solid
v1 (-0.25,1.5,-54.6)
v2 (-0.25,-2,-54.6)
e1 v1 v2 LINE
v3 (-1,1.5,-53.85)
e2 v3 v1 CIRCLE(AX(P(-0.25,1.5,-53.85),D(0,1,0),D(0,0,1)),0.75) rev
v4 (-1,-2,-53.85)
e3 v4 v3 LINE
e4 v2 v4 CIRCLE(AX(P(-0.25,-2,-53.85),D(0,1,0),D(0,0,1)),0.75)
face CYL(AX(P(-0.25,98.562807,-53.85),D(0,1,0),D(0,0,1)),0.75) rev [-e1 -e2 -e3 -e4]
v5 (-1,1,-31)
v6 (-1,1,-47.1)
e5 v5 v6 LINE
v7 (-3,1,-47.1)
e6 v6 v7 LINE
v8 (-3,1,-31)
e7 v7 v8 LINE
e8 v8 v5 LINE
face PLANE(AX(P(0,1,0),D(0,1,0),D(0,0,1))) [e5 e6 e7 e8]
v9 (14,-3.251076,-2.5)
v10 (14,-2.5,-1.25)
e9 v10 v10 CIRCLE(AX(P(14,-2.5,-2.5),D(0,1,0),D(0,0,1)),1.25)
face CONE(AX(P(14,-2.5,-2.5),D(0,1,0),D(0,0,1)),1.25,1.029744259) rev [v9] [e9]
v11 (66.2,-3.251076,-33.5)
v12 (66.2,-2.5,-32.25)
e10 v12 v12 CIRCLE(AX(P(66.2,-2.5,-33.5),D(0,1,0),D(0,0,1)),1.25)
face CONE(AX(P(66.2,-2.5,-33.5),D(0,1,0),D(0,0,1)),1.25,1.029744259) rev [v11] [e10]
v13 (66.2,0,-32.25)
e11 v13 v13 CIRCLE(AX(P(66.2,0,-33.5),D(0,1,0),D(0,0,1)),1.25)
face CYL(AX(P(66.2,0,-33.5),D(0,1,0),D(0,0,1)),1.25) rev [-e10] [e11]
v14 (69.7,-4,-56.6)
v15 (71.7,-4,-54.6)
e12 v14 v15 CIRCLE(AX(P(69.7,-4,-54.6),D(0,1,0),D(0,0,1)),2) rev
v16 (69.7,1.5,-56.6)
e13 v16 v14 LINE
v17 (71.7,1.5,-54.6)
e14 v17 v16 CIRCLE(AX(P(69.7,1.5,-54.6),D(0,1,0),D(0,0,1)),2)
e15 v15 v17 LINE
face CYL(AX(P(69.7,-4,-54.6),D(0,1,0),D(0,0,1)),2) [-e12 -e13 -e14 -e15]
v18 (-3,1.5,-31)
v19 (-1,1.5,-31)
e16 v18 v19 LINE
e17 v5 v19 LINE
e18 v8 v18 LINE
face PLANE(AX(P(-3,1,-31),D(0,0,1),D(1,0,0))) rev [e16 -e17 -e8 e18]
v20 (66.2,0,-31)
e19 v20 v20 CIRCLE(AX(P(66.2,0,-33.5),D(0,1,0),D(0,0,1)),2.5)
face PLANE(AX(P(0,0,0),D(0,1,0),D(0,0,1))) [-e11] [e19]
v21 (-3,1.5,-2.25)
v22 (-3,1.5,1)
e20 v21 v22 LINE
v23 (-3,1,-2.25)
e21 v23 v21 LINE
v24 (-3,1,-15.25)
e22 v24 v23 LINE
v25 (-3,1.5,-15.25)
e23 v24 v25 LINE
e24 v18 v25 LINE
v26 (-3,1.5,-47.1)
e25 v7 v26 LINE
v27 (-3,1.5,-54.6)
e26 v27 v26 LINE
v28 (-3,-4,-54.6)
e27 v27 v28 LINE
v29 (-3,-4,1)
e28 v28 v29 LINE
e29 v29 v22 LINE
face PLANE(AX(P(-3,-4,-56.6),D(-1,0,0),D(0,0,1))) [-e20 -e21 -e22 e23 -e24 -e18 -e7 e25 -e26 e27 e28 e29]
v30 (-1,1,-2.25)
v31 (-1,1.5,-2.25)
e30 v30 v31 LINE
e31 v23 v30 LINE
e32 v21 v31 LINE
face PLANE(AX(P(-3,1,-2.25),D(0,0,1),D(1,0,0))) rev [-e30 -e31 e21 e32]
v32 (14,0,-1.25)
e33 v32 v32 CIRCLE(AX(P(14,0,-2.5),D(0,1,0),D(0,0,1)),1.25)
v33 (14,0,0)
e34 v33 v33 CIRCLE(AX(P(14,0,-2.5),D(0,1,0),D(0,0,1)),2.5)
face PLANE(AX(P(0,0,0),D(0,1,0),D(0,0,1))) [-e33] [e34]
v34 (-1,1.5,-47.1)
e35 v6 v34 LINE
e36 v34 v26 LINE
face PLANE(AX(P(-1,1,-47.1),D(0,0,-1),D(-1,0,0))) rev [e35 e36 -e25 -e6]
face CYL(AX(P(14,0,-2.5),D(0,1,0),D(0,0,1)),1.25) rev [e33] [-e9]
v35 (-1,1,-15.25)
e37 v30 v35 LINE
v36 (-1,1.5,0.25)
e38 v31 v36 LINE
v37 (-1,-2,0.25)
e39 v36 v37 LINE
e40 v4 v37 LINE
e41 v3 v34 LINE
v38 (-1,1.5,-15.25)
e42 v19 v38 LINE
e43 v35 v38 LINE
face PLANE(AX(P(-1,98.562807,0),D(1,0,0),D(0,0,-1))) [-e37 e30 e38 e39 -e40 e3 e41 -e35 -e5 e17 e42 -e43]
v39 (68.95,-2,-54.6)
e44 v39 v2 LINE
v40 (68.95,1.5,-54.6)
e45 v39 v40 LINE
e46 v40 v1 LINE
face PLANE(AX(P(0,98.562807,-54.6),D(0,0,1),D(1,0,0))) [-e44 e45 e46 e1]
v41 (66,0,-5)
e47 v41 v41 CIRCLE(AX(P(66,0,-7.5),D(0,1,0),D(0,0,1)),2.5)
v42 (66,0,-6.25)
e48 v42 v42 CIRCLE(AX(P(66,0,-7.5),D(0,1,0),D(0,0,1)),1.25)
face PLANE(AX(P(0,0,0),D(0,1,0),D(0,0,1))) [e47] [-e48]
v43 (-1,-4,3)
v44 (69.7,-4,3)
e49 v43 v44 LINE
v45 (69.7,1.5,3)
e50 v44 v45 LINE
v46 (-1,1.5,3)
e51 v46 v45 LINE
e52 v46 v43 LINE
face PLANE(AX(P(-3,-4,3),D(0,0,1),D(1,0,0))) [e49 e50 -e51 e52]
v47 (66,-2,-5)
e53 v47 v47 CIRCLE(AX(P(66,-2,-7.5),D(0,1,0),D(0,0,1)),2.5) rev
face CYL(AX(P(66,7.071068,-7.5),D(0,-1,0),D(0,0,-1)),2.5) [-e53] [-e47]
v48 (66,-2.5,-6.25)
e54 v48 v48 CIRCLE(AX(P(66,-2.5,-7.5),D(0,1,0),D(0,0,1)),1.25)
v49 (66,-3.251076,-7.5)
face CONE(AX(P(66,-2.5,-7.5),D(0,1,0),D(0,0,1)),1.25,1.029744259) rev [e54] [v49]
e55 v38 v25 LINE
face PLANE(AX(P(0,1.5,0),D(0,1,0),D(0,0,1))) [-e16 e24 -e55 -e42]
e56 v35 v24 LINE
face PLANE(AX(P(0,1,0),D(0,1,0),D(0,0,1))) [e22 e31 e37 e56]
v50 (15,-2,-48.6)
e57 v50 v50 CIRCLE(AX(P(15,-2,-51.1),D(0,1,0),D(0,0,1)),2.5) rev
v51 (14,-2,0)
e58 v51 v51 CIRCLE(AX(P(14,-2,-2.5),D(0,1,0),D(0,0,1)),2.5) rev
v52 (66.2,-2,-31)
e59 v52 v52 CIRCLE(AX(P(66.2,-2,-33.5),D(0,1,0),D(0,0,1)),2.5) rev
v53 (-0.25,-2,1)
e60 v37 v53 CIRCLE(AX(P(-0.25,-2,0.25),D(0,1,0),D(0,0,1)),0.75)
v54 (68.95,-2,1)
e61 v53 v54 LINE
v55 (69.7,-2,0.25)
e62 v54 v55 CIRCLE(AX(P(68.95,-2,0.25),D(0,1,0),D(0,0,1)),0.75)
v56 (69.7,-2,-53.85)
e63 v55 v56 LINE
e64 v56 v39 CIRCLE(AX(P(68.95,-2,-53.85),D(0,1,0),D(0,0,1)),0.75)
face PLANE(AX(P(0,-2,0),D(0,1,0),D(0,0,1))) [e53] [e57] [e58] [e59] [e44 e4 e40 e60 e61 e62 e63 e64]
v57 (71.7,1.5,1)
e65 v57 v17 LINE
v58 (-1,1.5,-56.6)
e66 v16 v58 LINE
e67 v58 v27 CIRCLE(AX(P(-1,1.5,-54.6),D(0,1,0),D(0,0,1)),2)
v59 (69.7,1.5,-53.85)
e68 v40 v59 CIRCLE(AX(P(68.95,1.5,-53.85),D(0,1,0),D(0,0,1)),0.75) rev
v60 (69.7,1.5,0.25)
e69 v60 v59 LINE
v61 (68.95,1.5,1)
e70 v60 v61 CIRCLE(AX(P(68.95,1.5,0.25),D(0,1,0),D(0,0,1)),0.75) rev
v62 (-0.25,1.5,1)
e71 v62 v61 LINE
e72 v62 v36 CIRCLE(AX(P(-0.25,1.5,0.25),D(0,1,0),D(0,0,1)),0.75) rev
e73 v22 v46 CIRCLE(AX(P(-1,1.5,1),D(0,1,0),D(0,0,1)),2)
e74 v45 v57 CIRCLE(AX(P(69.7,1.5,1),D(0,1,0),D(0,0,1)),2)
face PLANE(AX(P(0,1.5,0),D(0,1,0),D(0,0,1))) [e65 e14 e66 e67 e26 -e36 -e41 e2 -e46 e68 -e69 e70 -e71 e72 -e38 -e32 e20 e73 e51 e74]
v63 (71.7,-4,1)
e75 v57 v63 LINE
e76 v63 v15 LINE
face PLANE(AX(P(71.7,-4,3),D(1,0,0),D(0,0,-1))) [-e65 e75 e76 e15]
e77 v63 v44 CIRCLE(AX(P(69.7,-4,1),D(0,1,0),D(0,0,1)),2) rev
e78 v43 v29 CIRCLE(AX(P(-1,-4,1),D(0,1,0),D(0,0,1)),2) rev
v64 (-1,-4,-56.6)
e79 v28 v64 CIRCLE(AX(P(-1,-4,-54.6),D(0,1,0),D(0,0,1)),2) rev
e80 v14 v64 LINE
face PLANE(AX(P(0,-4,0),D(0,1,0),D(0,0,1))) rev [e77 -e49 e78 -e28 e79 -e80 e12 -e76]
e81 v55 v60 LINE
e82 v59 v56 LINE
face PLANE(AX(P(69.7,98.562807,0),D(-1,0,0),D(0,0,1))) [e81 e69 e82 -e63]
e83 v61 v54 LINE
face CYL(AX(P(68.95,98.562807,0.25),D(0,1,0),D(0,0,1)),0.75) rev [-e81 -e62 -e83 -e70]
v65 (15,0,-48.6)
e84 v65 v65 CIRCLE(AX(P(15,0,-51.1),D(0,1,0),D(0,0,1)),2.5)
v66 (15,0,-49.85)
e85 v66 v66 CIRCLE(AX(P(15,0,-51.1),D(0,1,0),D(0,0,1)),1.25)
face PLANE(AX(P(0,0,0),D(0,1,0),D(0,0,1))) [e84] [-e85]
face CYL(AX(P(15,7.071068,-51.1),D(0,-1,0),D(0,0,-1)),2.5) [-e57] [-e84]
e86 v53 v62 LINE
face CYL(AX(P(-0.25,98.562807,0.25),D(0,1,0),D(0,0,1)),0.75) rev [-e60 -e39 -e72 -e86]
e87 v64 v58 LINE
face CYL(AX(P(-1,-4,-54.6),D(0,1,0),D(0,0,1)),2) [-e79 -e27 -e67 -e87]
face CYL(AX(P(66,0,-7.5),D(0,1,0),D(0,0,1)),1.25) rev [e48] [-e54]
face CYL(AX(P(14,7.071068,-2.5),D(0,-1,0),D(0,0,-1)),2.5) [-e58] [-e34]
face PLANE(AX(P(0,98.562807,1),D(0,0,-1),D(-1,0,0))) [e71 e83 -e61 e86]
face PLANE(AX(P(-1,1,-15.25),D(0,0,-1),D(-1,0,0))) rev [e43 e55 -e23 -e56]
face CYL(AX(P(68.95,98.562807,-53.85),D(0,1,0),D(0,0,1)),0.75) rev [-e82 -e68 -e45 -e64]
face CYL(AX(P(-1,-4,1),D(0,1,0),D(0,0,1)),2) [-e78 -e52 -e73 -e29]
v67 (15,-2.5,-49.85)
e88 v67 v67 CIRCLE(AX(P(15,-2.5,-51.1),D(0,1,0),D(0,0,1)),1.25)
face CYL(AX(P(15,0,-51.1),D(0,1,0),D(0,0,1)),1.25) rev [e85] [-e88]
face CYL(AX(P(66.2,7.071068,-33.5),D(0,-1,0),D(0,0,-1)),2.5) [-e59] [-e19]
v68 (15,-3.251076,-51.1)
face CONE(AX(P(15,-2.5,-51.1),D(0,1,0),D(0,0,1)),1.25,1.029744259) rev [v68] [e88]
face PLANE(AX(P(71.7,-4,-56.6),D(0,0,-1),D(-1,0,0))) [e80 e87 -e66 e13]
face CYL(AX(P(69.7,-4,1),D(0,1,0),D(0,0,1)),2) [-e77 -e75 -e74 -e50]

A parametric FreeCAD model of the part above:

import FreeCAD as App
import Part
import Sketcher

V = App.Vector
Q = App.Units.Quantity


def edges_at(feature, points):
    """Names of the edges that pass closest to the given points."""
    edges = feature.Shape.Edges
    near = lambda p: min(range(len(edges)), key=lambda i: edges[i].distToShape(Part.Vertex(*p))[0])
    return sorted({f"Edge{near(p) + 1}" for p in points})


def add_polygon(sketch, points):
    """Adds a closed chain of lines whose ends are joined by coincident constraints."""
    first, n = sketch.GeometryCount, len(points)
    for a, b in zip(points, points[1:] + points[:1]):
        sketch.addGeometry(Part.LineSegment(App.Vector(*a, 0), App.Vector(*b, 0)), False)
    for i in range(n):
        sketch.addConstraint(Sketcher.Constraint("Coincident", first + i, 2, first + (i + 1) % n, 1))

doc = App.newDocument("Part")
params = doc.addObject("Spreadsheet::Sheet", "Params")
for row, (alias, value) in enumerate([
    ("sketch1_width", "74.7 mm"),
    ("sketch1_height", "59.6 mm"),
    ("pad1_length", "2 mm"),
    ("sketch2_width", "74.7 mm"),
    ("sketch2_width2", "70.7 mm"),
    ("sketch2_height", "59.6 mm"),
    ("sketch2_height2", "55.6 mm"),
    ("pad2_length", "3.5 mm"),
    ("sketch3_diameter", "5 mm"),
    ("pad3_length", "4 mm"),
    ("sketch4_diameter", "2.5 mm"),
    ("hole_diameter", "2.5 mm"),
    ("hole_depth", "2.5 mm"),
    ("fillet_radius", "0.75 mm"),
    ("fillet2_radius", "2 mm"),
    ("sketch5_width", "2 mm"),
    ("sketch5_height", "13 mm"),
    ("sketch5_height2", "16.1 mm"),
    ("pocket1_length", "0.5 mm"),
], start=1):
    params.set(f"A{row}", alias)
    params.set(f"B{row}", "=" + value)
    params.setAlias(f"B{row}", alias)

body = doc.addObject("PartDesign::Body", "Body")

sketch1 = body.newObject("Sketcher::SketchObject", "Sketch")
sketch1.AttachmentSupport = (doc.getObject("XZ_Plane"), [""])
sketch1.MapMode = "FlatFace"
sketch1.AttachmentOffset = App.Placement(V(0, 0, 2), App.Rotation())
add_polygon(sketch1, [(-3, -57), (-3, 3), (72, 3), (72, -57)])
sketch1.addConstraint([
    Sketcher.Constraint("Vertical", 0),
    Sketcher.Constraint("Horizontal", 1),
    Sketcher.Constraint("Vertical", 2),
    Sketcher.Constraint("Horizontal", 3),
    Sketcher.Constraint("DistanceX", 1, 1, 1, 2, Q("74.7 mm")),
    Sketcher.Constraint("DistanceY", 0, 1, 0, 2, Q("59.6 mm")),
    Sketcher.Constraint("DistanceX", 0, 2, -1, 1, Q("3 mm")),
    Sketcher.Constraint("DistanceY", -1, 1, 0, 2, Q("3 mm")),
])
sketch1.setExpression("Constraints[8]", "Params.sketch1_width")
sketch1.setExpression("Constraints[9]", "Params.sketch1_height")
pad1 = body.newObject("PartDesign::Pad", "Pad")
pad1.Profile = sketch1
pad1.setExpression("Length", "Params.pad1_length")

sketch2 = body.newObject("Sketcher::SketchObject", "Sketch001")
sketch2.AttachmentSupport = (doc.getObject("XZ_Plane"), [""])
sketch2.MapMode = "FlatFace"
sketch2.AttachmentOffset = App.Placement(V(0, 0, 2), App.Rotation())
add_polygon(sketch2, [(-3, -57), (-3, 3), (72, 3), (72, -57)])
add_polygon(sketch2, [(70, 1), (-1, 1), (-1, -55), (70, -55)])
sketch2.addConstraint([
    Sketcher.Constraint("Vertical", 0),
    Sketcher.Constraint("Horizontal", 1),
    Sketcher.Constraint("Vertical", 2),
    Sketcher.Constraint("Horizontal", 3),
    Sketcher.Constraint("Horizontal", 4),
    Sketcher.Constraint("Vertical", 5),
    Sketcher.Constraint("Horizontal", 6),
    Sketcher.Constraint("Vertical", 7),
    Sketcher.Constraint("DistanceX", 1, 1, 1, 2, Q("74.7 mm")),
    Sketcher.Constraint("DistanceX", 4, 2, 4, 1, Q("70.7 mm")),
    Sketcher.Constraint("DistanceY", 0, 1, 0, 2, Q("59.6 mm")),
    Sketcher.Constraint("DistanceY", 5, 2, 5, 1, Q("55.6 mm")),
    Sketcher.Constraint("DistanceX", 0, 2, -1, 1, Q("3 mm")),
    Sketcher.Constraint("DistanceY", -1, 1, 0, 2, Q("3 mm")),
    Sketcher.Constraint("DistanceX", 4, 2, -1, 1, Q("1 mm")),
    Sketcher.Constraint("DistanceY", -1, 1, 4, 2, Q("1 mm")),
])
sketch2.setExpression("Constraints[16]", "Params.sketch2_width")
sketch2.setExpression("Constraints[17]", "Params.sketch2_width2")
sketch2.setExpression("Constraints[18]", "Params.sketch2_height")
sketch2.setExpression("Constraints[19]", "Params.sketch2_height2")
pad2 = body.newObject("PartDesign::Pad", "Pad001")
pad2.Profile = sketch2
pad2.setExpression("Length", "Params.pad2_length")
pad2.Reversed = True

sketch3 = body.newObject("Sketcher::SketchObject", "Sketch002")
sketch3.AttachmentSupport = (doc.getObject("XZ_Plane"), [""])
sketch3.MapMode = "FlatFace"
sketch3.AttachmentOffset = App.Placement(V(0, 0, 4), App.Rotation())
sketch3.addGeometry([
    Part.Circle(V(14, -2.5, 0), V(0, 0, 1), 2.5),
    Part.Circle(V(15, -51.1, 0), V(0, 0, 1), 2.5),
    Part.Circle(V(66.2, -33.5, 0), V(0, 0, 1), 2.5),
    Part.Circle(V(66, -7.5, 0), V(0, 0, 1), 2.5),
], False)
sketch3.addConstraint([
    Sketcher.Constraint("Equal", 0, 1),
    Sketcher.Constraint("Equal", 1, 2),
    Sketcher.Constraint("Equal", 2, 3),
    Sketcher.Constraint("Diameter", 0, Q("5 mm")),
    Sketcher.Constraint("DistanceX", -1, 1, 0, 3, Q("14 mm")),
    Sketcher.Constraint("DistanceX", -1, 1, 1, 3, Q("15 mm")),
    Sketcher.Constraint("DistanceX", -1, 1, 3, 3, Q("66 mm")),
    Sketcher.Constraint("DistanceY", 2, 3, 0, 3, Q("31 mm")),
    Sketcher.Constraint("DistanceY", 2, 3, 3, 3, Q("26 mm")),
    Sketcher.Constraint("DistanceY", 0, 3, -1, 1, Q("2.5 mm")),
    Sketcher.Constraint("DistanceY", 1, 3, -1, 1, Q("51.1 mm")),
    Sketcher.Constraint("DistanceX", -1, 1, 2, 3, Q("66.2 mm")),
])
sketch3.setExpression("Constraints[3]", "Params.sketch3_diameter")
pad3 = body.newObject("PartDesign::Pad", "Pad002")
pad3.Profile = sketch3
pad3.setExpression("Length", "Params.pad3_length")
pad3.Reversed = True

sketch4 = body.newObject("Sketcher::SketchObject", "Sketch003")
sketch4.AttachmentSupport = (doc.getObject("XZ_Plane"), [""])
sketch4.MapMode = "FlatFace"
sketch4.addGeometry([
    Part.Circle(V(66, -7.5, 0), V(0, 0, 1), 1.2),
    Part.Circle(V(66.2, -33.5, 0), V(0, 0, 1), 1.2),
    Part.Circle(V(15, -51.1, 0), V(0, 0, 1), 1.2),
    Part.Circle(V(14, -2.5, 0), V(0, 0, 1), 1.2),
], False)
sketch4.addConstraint([
    Sketcher.Constraint("Equal", 0, 1),
    Sketcher.Constraint("Equal", 1, 2),
    Sketcher.Constraint("Equal", 2, 3),
    Sketcher.Constraint("Diameter", 0, Q("2.5 mm")),
    Sketcher.Constraint("DistanceX", -1, 1, 0, 3, Q("66 mm")),
    Sketcher.Constraint("DistanceX", -1, 1, 2, 3, Q("15 mm")),
    Sketcher.Constraint("DistanceX", -1, 1, 3, 3, Q("14 mm")),
    Sketcher.Constraint("DistanceY", 1, 3, 0, 3, Q("26 mm")),
    Sketcher.Constraint("DistanceY", 0, 3, 3, 3, Q("5 mm")),
    Sketcher.Constraint("DistanceY", 0, 3, -1, 1, Q("7.5 mm")),
    Sketcher.Constraint("DistanceX", -1, 1, 1, 3, Q("66.2 mm")),
    Sketcher.Constraint("DistanceY", 2, 3, -1, 1, Q("51.1 mm")),
])
sketch4.setExpression("Constraints[3]", "Params.sketch4_diameter")
doc.recompute()
hole = body.newObject("PartDesign::Hole", "Hole")
hole.Profile = sketch4
hole.ThreadType = "None"
hole.setExpression("Diameter", "Params.hole_diameter")
hole.DepthType = "Dimension"
hole.setExpression("Depth", "Params.hole_depth")
hole.DrillPoint = "Angled"
hole.DrillPointAngle = 118
hole.Reversed = True
doc.recompute()

fillet = body.newObject("PartDesign::Fillet", "Fillet")
fillet.Base = (hole, edges_at(hole, [
    (-1, -0.25, 1),
    (-1, -0.25, -54.6),
    (69.7, -0.25, -54.6),
    (69.7, -0.25, 1),
]))
fillet.setExpression("Radius", "Params.fillet_radius")
doc.recompute()

fillet2 = body.newObject("PartDesign::Fillet", "Fillet001")
fillet2.Base = (fillet, edges_at(fillet, [
    (71.7, -1.25, -56.6),
    (71.7, -1.25, 3),
    (-3, -1.25, 3),
    (-3, -1.25, -56.6),
]))
fillet2.setExpression("Radius", "Params.fillet2_radius")

sketch5 = body.newObject("Sketcher::SketchObject", "Sketch004")
sketch5.AttachmentSupport = (doc.getObject("XZ_Plane"), [""])
sketch5.MapMode = "FlatFace"
sketch5.AttachmentOffset = App.Placement(V(0, 0, -1.5), App.Rotation())
add_polygon(sketch5, [(-3, -15.2), (-3, -2.2), (-1, -2.2), (-1, -15.2)])
add_polygon(sketch5, [(-3, -47.1), (-3, -31), (-1, -31), (-1, -47.1)])
sketch5.addConstraint([
    Sketcher.Constraint("Vertical", 0),
    Sketcher.Constraint("Horizontal", 1),
    Sketcher.Constraint("Vertical", 2),
    Sketcher.Constraint("Horizontal", 3),
    Sketcher.Constraint("Vertical", 4),
    Sketcher.Constraint("Horizontal", 5),
    Sketcher.Constraint("Vertical", 6),
    Sketcher.Constraint("Horizontal", 7),
    Sketcher.Constraint("Vertical", 3, 2, 4, 2),
    Sketcher.Constraint("Vertical", 2, 2, 5, 2),
    Sketcher.Constraint("DistanceX", 1, 1, 1, 2, Q("2 mm")),
    Sketcher.Constraint("DistanceY", 0, 1, 0, 2, Q("13 mm")),
    Sketcher.Constraint("DistanceY", 4, 1, 4, 2, Q("16.1 mm")),
    Sketcher.Constraint("DistanceX", 0, 2, -1, 1, Q("3 mm")),
    Sketcher.Constraint("DistanceY", 4, 2, -1, 1, Q("31 mm")),
    Sketcher.Constraint("DistanceY", 0, 2, -1, 1, Q("2.25 mm")),
])
sketch5.setExpression("Constraints[18]", "Params.sketch5_width")
sketch5.setExpression("Constraints[19]", "Params.sketch5_height")
sketch5.setExpression("Constraints[20]", "Params.sketch5_height2")
pocket1 = body.newObject("PartDesign::Pocket", "Pocket")
pocket1.Profile = sketch5
pocket1.setExpression("Length", "Params.pocket1_length")
pocket1.Reversed = True

doc.recompute()
